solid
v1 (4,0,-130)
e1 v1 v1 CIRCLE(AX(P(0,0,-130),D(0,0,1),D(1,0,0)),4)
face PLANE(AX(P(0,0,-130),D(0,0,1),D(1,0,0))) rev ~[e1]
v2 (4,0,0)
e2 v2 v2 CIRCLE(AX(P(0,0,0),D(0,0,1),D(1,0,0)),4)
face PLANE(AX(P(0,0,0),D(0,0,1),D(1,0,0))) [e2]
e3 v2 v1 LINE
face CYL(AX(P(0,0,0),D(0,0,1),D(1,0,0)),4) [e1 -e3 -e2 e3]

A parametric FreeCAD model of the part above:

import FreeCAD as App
import Part
import Sketcher

V = App.Vector

doc = App.newDocument("Part")
body = doc.addObject("PartDesign::Body", "Body")

sketch1 = body.newObject("Sketcher::SketchObject", "Sketch")
sketch1.AttachmentSupport = (doc.getObject("XY_Plane"), [""])
sketch1.MapMode = "FlatFace"
sketch1.addGeometry(Part.Circle(V(0, 0, 0), V(0, 0, 1), 4), False)
sketch1.addConstraint(Sketcher.Constraint("Coincident", 0, 3, -1, 1))
sketch1.addConstraint(Sketcher.Constraint("Diameter", 0, 8.0))
pad1 = body.newObject("PartDesign::Pad", "Pad")
pad1.Profile = sketch1
pad1.Length = 130
pad1.Reversed = True

doc.recompute()
